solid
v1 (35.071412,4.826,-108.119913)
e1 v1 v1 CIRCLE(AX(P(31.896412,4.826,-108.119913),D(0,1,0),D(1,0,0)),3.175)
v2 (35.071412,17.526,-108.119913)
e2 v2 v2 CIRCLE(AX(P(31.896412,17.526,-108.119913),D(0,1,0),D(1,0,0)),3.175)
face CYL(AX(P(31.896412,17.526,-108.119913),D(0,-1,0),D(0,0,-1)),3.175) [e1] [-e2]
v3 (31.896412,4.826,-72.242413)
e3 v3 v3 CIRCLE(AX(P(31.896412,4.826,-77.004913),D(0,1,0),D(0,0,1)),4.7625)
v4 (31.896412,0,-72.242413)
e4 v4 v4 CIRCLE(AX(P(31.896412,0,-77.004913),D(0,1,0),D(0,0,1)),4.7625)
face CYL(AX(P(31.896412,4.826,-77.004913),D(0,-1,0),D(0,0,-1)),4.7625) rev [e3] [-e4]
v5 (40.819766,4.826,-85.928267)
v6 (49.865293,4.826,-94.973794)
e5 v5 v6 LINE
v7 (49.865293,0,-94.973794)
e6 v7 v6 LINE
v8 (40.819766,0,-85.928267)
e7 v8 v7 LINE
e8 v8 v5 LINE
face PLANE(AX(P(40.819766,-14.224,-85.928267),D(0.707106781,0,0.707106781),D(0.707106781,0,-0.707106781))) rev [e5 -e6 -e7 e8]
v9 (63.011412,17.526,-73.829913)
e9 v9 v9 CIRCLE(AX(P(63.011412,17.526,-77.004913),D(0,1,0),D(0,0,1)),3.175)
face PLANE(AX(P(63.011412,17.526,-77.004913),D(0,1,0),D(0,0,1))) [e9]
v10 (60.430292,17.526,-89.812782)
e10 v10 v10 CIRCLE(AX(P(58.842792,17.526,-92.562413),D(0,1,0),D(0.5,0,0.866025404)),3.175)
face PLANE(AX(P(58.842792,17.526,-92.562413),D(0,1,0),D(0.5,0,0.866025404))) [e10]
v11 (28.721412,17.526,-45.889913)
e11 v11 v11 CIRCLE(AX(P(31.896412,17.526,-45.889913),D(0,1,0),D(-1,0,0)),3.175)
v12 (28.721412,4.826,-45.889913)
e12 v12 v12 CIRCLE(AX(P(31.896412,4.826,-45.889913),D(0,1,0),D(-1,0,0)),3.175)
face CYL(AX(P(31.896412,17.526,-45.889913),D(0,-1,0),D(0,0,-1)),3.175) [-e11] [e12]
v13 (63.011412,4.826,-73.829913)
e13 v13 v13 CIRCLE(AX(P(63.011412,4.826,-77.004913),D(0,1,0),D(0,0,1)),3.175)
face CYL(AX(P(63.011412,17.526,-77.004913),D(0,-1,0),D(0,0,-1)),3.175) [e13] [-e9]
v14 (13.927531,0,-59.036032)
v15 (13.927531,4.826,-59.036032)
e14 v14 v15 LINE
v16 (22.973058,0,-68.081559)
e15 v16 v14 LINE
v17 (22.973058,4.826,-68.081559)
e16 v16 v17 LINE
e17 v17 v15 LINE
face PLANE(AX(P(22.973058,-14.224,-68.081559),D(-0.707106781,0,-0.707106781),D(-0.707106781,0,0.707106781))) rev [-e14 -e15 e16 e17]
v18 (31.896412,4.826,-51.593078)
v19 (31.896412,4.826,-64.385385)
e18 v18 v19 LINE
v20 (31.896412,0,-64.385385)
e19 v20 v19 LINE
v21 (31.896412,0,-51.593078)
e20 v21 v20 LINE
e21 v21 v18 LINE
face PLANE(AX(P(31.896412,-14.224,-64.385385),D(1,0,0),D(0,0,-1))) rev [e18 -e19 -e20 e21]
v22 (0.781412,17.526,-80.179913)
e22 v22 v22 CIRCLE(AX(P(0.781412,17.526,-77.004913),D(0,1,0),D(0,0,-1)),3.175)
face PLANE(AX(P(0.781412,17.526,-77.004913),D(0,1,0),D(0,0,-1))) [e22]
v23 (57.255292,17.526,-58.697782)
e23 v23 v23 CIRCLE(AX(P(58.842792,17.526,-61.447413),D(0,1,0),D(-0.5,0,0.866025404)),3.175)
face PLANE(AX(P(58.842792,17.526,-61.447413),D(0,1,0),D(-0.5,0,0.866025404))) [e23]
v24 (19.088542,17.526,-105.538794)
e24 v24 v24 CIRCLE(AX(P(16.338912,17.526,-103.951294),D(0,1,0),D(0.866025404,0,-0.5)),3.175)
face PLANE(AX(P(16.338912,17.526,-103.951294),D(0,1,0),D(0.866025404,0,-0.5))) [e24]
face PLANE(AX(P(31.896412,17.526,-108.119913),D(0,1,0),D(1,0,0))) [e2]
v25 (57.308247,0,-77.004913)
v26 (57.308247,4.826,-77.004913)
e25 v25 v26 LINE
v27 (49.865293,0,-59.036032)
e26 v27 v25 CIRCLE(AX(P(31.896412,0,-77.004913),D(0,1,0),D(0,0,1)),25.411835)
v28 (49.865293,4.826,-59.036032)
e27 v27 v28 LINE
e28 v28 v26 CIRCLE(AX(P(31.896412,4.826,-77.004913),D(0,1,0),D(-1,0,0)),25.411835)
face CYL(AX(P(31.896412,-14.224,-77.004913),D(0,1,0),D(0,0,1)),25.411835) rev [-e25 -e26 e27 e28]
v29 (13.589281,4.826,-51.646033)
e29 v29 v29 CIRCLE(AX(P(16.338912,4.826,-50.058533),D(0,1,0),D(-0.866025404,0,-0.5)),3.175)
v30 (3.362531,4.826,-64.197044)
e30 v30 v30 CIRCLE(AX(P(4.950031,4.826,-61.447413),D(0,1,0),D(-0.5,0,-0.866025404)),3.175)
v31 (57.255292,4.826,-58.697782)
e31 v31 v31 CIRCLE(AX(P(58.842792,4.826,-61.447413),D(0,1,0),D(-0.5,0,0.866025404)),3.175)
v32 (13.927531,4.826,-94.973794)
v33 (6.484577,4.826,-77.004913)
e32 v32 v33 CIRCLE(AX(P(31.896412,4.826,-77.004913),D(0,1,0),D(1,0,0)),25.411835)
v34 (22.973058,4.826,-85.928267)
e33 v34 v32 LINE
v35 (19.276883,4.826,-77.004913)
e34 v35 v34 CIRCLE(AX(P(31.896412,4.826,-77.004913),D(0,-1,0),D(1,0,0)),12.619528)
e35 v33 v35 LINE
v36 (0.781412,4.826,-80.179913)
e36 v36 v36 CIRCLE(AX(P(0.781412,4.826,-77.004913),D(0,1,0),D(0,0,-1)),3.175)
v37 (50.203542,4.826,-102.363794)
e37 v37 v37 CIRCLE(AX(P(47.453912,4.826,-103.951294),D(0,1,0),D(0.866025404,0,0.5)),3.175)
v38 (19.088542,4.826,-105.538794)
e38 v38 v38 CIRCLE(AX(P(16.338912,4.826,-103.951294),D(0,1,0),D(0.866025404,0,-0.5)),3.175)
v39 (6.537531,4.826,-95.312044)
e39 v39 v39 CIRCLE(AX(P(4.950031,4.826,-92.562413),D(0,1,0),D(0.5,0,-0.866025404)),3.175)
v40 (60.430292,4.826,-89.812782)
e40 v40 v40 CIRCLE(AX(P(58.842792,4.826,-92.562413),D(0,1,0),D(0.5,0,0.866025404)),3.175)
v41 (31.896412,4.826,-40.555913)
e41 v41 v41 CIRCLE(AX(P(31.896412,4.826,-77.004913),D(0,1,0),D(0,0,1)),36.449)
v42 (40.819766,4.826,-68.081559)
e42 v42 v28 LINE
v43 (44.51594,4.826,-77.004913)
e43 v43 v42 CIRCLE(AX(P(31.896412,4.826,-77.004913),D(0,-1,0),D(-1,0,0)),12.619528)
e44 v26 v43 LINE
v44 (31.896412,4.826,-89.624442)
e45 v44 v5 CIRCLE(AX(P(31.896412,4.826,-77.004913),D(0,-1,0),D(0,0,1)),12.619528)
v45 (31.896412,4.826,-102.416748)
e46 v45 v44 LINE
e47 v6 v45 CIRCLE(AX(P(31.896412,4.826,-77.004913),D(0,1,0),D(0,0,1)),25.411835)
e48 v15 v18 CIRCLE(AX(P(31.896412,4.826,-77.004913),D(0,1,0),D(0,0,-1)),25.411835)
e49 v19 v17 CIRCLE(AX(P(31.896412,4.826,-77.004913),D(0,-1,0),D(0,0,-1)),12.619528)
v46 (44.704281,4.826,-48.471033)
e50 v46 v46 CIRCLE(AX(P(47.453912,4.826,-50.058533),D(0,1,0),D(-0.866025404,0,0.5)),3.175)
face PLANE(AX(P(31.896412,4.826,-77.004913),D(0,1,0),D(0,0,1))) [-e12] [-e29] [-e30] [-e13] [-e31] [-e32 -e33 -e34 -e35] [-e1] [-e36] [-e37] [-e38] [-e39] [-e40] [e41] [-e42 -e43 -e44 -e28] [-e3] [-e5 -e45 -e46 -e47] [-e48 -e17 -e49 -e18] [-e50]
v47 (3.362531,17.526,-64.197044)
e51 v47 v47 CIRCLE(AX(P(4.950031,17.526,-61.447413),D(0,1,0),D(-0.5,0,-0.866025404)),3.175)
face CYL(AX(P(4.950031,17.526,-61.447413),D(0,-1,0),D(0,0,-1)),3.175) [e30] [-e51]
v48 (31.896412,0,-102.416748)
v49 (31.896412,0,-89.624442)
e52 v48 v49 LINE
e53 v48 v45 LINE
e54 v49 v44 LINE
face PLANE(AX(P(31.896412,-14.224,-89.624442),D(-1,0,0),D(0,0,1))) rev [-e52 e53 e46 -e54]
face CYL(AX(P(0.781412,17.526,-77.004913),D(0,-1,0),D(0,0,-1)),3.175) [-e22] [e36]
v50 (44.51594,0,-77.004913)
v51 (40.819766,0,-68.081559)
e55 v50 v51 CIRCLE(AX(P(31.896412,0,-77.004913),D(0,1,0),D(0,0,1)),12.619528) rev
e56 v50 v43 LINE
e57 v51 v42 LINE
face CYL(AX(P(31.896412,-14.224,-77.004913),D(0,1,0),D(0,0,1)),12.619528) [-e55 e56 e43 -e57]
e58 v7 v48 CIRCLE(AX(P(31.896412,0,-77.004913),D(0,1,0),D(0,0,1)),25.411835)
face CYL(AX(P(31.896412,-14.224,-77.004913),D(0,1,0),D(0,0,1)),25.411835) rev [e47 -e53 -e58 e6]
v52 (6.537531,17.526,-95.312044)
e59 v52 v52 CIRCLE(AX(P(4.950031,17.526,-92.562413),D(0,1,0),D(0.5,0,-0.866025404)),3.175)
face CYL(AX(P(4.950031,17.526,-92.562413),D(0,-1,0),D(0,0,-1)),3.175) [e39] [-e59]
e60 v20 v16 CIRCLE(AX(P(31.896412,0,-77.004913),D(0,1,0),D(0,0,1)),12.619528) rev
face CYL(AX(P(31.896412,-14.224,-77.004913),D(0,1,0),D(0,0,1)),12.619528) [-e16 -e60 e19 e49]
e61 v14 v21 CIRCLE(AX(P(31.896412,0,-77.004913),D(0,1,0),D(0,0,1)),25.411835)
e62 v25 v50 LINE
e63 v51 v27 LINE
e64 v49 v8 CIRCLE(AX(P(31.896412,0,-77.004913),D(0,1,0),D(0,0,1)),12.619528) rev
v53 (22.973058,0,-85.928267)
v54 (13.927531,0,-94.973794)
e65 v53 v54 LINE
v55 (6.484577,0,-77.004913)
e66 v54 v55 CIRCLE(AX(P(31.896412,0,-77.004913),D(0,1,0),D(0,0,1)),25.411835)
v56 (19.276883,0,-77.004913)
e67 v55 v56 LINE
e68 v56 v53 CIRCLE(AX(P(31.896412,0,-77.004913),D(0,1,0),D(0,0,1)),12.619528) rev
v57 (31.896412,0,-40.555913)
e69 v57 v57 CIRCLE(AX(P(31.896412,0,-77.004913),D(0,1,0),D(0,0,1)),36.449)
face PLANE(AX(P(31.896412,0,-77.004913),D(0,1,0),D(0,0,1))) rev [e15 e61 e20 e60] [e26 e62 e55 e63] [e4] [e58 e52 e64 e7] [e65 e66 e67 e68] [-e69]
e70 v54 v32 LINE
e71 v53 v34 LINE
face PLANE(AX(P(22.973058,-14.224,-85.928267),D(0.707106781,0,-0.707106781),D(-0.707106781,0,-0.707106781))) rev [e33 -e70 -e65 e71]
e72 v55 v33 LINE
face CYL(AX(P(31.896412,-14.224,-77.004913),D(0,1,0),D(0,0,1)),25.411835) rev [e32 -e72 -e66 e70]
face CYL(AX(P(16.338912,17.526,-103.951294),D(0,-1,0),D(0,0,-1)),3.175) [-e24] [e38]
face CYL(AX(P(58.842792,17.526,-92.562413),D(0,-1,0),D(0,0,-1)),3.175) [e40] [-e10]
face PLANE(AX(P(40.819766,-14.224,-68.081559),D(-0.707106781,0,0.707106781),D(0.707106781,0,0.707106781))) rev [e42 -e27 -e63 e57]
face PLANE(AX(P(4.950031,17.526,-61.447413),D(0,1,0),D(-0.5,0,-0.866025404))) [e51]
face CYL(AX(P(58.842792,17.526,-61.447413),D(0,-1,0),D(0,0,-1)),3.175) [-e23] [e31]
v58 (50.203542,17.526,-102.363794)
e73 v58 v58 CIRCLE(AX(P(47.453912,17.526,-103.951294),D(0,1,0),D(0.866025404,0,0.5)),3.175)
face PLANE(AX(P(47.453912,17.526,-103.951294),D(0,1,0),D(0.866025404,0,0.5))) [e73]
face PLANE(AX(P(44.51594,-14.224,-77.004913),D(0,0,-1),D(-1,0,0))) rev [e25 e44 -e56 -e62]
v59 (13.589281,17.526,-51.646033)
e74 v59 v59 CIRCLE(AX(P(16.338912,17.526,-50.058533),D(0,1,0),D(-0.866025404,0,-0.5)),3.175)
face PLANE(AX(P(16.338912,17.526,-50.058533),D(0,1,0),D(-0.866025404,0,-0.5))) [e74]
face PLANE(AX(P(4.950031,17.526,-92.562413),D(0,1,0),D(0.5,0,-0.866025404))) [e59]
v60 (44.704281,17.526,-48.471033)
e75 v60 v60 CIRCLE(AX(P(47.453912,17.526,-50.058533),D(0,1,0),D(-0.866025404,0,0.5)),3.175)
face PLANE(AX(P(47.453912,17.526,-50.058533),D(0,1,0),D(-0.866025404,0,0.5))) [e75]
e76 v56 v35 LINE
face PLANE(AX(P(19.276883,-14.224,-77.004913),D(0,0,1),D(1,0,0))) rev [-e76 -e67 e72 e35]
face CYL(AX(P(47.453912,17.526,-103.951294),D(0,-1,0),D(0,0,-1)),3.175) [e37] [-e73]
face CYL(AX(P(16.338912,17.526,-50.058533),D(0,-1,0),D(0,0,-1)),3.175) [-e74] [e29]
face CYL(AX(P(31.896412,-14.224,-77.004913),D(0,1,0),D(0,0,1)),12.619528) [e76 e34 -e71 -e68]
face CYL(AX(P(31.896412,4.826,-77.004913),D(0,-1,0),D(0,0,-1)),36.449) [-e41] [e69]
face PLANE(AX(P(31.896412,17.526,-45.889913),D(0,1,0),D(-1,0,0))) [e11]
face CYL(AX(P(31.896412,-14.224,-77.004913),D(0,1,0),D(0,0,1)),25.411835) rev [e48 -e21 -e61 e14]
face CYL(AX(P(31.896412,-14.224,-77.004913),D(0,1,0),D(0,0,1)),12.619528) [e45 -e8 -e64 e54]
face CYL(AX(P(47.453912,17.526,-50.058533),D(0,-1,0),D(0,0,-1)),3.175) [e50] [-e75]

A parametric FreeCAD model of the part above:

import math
import FreeCAD as App
import Part
import Sketcher
from FreeCAD import Vector
Q = App.Units.Quantity

doc = App.newDocument("Part")
body = doc.addObject("PartDesign::Body", "Body")

# Sketch on XZ plane
sketch1 = body.newObject("Sketcher::SketchObject", "Sketch")
sketch1.AttachmentSupport = (doc.getObject("XZ_Plane"), [""])
sketch1.MapMode = "FlatFace"
sketch1.addGeometry([
    Part.Circle(Vector(31.896412, -77.004913, 0), Vector(0, 0, 1), 36.449),
    Part.Circle(Vector(31.896412, -77.004913, 0), Vector(0, 0, 1), 4.7625),
], False)
sketch1.addConstraint([
    Sketcher.Constraint("Coincident", 1, 3, 0, 3),
    Sketcher.Constraint("Diameter", 0, Q("2.87 in")),
    Sketcher.Constraint("Diameter", 1, Q("0.375 in")),
    Sketcher.Constraint("DistanceX", -1, 1, 0, 3, 31.896412),
    Sketcher.Constraint("DistanceY", 0, 3, -1, 1, 77.004913),
])
pad1 = body.newObject("PartDesign::Pad", "Pad")
pad1.Profile = sketch1
pad1.Length = Q("0.19 in")
pad1.Reversed = True

# Sketch on XZ plane
sketch2 = body.newObject("Sketcher::SketchObject", "Sketch001")
sketch2.AttachmentSupport = (doc.getObject("XZ_Plane"), [""])
sketch2.MapMode = "FlatFace"
sketch2.AttachmentOffset = App.Placement(Vector(0, 0, -0.19 * 25.4), App.Rotation())
sketch2.addGeometry(Part.Circle(Vector(63.011412, -77.004913, 0), Vector(0, 0, 1), 3.175), False)
sketch2.addConstraint([
    Sketcher.Constraint("Diameter", 0, Q("0.25 in")),
    Sketcher.Constraint("DistanceX", -1, 1, 0, 3, 63.011412),
    Sketcher.Constraint("DistanceY", 0, 3, -1, 1, 77.004913),
])
pad2 = body.newObject("PartDesign::Pad", "Pad001")
pad2.Profile = sketch2
pad2.Length = Q("0.5 in")
pad2.Reversed = True
doc.recompute()

datumline = body.newObject("PartDesign::Line", "DatumLine")
datumline.Placement = App.Placement(Vector(31.896412, 0, -77.004913), App.Rotation(Vector(0, 0, 1), Vector(0, 1, 0)))
polarpattern = body.newObject("PartDesign::PolarPattern", "PolarPattern")
polarpattern.Originals = [pad2]
polarpattern.Axis = (datumline, [""])
polarpattern.Angle = 360
polarpattern.Occurrences = 12
body.Tip = polarpattern

# Sketch on XZ plane
sketch3 = body.newObject("Sketcher::SketchObject", "Sketch002")
sketch3.AttachmentSupport = (doc.getObject("XZ_Plane"), [""])
sketch3.MapMode = "FlatFace"
sketch3.AttachmentOffset = App.Placement(Vector(0, 0, -0.19 * 25.4), App.Rotation())
sketch3.addGeometry([
    Part.LineSegment(Vector(31.896412, -102.416748, 0), Vector(31.896412, -89.624442, 0)),
    Part.ArcOfCircle(Part.Circle(Vector(31.896412, -77.004913, 0), Vector(0, 0, 1), 12.619528), math.radians(-90), math.radians(-45)),
    Part.LineSegment(Vector(40.819766, -85.928267, 0), Vector(49.865293, -94.973794, 0)),
    Part.ArcOfCircle(Part.Circle(Vector(31.896412, -77.004913, 0), Vector(0, 0, 1), 25.411835), math.radians(-90), math.radians(-45)),
], False)
sketch3.addConstraint([
    Sketcher.Constraint("Coincident", 0, 2, 1, 1),
    Sketcher.Constraint("Coincident", 1, 2, 2, 1),
    Sketcher.Constraint("Coincident", 2, 2, 3, 2),
    Sketcher.Constraint("Coincident", 3, 1, 0, 1),
    Sketcher.Constraint("Vertical", 0),
    Sketcher.Constraint("Coincident", 3, 3, 1, 3),
    Sketcher.Constraint("Vertical", 3, 3, 0, 2),
    Sketcher.Constraint("Angle", 2, Q("-45 deg")),
    Sketcher.Constraint("Radius", 1, 12.619528),
    Sketcher.Constraint("Radius", 3, 25.411835),
    Sketcher.Constraint("DistanceX", -1, 1, 1, 3, 31.896412),
    Sketcher.Constraint("DistanceY", 0, 2, -1, 1, 89.624442),
    Sketcher.Constraint("DistanceX", 0, 2, 2, 2, 17.968881),
])
pocket1 = body.newObject("PartDesign::Pocket", "Pocket")
pocket1.Profile = sketch3
pocket1.Length = Q("0.75 in")
pocket1.Reversed = True
doc.recompute()

datumline2 = body.newObject("PartDesign::Line", "DatumLine001")
datumline2.Placement = App.Placement(Vector(31.896412, 0, -77.004913), App.Rotation(Vector(0, 0, 1), Vector(0, 1, 0)))
polarpattern2 = body.newObject("PartDesign::PolarPattern", "PolarPattern001")
polarpattern2.Originals = [pocket1]
polarpattern2.Axis = (datumline2, [""])
polarpattern2.Angle = 360
polarpattern2.Occurrences = 4
body.Tip = polarpattern2

doc.recompute()
